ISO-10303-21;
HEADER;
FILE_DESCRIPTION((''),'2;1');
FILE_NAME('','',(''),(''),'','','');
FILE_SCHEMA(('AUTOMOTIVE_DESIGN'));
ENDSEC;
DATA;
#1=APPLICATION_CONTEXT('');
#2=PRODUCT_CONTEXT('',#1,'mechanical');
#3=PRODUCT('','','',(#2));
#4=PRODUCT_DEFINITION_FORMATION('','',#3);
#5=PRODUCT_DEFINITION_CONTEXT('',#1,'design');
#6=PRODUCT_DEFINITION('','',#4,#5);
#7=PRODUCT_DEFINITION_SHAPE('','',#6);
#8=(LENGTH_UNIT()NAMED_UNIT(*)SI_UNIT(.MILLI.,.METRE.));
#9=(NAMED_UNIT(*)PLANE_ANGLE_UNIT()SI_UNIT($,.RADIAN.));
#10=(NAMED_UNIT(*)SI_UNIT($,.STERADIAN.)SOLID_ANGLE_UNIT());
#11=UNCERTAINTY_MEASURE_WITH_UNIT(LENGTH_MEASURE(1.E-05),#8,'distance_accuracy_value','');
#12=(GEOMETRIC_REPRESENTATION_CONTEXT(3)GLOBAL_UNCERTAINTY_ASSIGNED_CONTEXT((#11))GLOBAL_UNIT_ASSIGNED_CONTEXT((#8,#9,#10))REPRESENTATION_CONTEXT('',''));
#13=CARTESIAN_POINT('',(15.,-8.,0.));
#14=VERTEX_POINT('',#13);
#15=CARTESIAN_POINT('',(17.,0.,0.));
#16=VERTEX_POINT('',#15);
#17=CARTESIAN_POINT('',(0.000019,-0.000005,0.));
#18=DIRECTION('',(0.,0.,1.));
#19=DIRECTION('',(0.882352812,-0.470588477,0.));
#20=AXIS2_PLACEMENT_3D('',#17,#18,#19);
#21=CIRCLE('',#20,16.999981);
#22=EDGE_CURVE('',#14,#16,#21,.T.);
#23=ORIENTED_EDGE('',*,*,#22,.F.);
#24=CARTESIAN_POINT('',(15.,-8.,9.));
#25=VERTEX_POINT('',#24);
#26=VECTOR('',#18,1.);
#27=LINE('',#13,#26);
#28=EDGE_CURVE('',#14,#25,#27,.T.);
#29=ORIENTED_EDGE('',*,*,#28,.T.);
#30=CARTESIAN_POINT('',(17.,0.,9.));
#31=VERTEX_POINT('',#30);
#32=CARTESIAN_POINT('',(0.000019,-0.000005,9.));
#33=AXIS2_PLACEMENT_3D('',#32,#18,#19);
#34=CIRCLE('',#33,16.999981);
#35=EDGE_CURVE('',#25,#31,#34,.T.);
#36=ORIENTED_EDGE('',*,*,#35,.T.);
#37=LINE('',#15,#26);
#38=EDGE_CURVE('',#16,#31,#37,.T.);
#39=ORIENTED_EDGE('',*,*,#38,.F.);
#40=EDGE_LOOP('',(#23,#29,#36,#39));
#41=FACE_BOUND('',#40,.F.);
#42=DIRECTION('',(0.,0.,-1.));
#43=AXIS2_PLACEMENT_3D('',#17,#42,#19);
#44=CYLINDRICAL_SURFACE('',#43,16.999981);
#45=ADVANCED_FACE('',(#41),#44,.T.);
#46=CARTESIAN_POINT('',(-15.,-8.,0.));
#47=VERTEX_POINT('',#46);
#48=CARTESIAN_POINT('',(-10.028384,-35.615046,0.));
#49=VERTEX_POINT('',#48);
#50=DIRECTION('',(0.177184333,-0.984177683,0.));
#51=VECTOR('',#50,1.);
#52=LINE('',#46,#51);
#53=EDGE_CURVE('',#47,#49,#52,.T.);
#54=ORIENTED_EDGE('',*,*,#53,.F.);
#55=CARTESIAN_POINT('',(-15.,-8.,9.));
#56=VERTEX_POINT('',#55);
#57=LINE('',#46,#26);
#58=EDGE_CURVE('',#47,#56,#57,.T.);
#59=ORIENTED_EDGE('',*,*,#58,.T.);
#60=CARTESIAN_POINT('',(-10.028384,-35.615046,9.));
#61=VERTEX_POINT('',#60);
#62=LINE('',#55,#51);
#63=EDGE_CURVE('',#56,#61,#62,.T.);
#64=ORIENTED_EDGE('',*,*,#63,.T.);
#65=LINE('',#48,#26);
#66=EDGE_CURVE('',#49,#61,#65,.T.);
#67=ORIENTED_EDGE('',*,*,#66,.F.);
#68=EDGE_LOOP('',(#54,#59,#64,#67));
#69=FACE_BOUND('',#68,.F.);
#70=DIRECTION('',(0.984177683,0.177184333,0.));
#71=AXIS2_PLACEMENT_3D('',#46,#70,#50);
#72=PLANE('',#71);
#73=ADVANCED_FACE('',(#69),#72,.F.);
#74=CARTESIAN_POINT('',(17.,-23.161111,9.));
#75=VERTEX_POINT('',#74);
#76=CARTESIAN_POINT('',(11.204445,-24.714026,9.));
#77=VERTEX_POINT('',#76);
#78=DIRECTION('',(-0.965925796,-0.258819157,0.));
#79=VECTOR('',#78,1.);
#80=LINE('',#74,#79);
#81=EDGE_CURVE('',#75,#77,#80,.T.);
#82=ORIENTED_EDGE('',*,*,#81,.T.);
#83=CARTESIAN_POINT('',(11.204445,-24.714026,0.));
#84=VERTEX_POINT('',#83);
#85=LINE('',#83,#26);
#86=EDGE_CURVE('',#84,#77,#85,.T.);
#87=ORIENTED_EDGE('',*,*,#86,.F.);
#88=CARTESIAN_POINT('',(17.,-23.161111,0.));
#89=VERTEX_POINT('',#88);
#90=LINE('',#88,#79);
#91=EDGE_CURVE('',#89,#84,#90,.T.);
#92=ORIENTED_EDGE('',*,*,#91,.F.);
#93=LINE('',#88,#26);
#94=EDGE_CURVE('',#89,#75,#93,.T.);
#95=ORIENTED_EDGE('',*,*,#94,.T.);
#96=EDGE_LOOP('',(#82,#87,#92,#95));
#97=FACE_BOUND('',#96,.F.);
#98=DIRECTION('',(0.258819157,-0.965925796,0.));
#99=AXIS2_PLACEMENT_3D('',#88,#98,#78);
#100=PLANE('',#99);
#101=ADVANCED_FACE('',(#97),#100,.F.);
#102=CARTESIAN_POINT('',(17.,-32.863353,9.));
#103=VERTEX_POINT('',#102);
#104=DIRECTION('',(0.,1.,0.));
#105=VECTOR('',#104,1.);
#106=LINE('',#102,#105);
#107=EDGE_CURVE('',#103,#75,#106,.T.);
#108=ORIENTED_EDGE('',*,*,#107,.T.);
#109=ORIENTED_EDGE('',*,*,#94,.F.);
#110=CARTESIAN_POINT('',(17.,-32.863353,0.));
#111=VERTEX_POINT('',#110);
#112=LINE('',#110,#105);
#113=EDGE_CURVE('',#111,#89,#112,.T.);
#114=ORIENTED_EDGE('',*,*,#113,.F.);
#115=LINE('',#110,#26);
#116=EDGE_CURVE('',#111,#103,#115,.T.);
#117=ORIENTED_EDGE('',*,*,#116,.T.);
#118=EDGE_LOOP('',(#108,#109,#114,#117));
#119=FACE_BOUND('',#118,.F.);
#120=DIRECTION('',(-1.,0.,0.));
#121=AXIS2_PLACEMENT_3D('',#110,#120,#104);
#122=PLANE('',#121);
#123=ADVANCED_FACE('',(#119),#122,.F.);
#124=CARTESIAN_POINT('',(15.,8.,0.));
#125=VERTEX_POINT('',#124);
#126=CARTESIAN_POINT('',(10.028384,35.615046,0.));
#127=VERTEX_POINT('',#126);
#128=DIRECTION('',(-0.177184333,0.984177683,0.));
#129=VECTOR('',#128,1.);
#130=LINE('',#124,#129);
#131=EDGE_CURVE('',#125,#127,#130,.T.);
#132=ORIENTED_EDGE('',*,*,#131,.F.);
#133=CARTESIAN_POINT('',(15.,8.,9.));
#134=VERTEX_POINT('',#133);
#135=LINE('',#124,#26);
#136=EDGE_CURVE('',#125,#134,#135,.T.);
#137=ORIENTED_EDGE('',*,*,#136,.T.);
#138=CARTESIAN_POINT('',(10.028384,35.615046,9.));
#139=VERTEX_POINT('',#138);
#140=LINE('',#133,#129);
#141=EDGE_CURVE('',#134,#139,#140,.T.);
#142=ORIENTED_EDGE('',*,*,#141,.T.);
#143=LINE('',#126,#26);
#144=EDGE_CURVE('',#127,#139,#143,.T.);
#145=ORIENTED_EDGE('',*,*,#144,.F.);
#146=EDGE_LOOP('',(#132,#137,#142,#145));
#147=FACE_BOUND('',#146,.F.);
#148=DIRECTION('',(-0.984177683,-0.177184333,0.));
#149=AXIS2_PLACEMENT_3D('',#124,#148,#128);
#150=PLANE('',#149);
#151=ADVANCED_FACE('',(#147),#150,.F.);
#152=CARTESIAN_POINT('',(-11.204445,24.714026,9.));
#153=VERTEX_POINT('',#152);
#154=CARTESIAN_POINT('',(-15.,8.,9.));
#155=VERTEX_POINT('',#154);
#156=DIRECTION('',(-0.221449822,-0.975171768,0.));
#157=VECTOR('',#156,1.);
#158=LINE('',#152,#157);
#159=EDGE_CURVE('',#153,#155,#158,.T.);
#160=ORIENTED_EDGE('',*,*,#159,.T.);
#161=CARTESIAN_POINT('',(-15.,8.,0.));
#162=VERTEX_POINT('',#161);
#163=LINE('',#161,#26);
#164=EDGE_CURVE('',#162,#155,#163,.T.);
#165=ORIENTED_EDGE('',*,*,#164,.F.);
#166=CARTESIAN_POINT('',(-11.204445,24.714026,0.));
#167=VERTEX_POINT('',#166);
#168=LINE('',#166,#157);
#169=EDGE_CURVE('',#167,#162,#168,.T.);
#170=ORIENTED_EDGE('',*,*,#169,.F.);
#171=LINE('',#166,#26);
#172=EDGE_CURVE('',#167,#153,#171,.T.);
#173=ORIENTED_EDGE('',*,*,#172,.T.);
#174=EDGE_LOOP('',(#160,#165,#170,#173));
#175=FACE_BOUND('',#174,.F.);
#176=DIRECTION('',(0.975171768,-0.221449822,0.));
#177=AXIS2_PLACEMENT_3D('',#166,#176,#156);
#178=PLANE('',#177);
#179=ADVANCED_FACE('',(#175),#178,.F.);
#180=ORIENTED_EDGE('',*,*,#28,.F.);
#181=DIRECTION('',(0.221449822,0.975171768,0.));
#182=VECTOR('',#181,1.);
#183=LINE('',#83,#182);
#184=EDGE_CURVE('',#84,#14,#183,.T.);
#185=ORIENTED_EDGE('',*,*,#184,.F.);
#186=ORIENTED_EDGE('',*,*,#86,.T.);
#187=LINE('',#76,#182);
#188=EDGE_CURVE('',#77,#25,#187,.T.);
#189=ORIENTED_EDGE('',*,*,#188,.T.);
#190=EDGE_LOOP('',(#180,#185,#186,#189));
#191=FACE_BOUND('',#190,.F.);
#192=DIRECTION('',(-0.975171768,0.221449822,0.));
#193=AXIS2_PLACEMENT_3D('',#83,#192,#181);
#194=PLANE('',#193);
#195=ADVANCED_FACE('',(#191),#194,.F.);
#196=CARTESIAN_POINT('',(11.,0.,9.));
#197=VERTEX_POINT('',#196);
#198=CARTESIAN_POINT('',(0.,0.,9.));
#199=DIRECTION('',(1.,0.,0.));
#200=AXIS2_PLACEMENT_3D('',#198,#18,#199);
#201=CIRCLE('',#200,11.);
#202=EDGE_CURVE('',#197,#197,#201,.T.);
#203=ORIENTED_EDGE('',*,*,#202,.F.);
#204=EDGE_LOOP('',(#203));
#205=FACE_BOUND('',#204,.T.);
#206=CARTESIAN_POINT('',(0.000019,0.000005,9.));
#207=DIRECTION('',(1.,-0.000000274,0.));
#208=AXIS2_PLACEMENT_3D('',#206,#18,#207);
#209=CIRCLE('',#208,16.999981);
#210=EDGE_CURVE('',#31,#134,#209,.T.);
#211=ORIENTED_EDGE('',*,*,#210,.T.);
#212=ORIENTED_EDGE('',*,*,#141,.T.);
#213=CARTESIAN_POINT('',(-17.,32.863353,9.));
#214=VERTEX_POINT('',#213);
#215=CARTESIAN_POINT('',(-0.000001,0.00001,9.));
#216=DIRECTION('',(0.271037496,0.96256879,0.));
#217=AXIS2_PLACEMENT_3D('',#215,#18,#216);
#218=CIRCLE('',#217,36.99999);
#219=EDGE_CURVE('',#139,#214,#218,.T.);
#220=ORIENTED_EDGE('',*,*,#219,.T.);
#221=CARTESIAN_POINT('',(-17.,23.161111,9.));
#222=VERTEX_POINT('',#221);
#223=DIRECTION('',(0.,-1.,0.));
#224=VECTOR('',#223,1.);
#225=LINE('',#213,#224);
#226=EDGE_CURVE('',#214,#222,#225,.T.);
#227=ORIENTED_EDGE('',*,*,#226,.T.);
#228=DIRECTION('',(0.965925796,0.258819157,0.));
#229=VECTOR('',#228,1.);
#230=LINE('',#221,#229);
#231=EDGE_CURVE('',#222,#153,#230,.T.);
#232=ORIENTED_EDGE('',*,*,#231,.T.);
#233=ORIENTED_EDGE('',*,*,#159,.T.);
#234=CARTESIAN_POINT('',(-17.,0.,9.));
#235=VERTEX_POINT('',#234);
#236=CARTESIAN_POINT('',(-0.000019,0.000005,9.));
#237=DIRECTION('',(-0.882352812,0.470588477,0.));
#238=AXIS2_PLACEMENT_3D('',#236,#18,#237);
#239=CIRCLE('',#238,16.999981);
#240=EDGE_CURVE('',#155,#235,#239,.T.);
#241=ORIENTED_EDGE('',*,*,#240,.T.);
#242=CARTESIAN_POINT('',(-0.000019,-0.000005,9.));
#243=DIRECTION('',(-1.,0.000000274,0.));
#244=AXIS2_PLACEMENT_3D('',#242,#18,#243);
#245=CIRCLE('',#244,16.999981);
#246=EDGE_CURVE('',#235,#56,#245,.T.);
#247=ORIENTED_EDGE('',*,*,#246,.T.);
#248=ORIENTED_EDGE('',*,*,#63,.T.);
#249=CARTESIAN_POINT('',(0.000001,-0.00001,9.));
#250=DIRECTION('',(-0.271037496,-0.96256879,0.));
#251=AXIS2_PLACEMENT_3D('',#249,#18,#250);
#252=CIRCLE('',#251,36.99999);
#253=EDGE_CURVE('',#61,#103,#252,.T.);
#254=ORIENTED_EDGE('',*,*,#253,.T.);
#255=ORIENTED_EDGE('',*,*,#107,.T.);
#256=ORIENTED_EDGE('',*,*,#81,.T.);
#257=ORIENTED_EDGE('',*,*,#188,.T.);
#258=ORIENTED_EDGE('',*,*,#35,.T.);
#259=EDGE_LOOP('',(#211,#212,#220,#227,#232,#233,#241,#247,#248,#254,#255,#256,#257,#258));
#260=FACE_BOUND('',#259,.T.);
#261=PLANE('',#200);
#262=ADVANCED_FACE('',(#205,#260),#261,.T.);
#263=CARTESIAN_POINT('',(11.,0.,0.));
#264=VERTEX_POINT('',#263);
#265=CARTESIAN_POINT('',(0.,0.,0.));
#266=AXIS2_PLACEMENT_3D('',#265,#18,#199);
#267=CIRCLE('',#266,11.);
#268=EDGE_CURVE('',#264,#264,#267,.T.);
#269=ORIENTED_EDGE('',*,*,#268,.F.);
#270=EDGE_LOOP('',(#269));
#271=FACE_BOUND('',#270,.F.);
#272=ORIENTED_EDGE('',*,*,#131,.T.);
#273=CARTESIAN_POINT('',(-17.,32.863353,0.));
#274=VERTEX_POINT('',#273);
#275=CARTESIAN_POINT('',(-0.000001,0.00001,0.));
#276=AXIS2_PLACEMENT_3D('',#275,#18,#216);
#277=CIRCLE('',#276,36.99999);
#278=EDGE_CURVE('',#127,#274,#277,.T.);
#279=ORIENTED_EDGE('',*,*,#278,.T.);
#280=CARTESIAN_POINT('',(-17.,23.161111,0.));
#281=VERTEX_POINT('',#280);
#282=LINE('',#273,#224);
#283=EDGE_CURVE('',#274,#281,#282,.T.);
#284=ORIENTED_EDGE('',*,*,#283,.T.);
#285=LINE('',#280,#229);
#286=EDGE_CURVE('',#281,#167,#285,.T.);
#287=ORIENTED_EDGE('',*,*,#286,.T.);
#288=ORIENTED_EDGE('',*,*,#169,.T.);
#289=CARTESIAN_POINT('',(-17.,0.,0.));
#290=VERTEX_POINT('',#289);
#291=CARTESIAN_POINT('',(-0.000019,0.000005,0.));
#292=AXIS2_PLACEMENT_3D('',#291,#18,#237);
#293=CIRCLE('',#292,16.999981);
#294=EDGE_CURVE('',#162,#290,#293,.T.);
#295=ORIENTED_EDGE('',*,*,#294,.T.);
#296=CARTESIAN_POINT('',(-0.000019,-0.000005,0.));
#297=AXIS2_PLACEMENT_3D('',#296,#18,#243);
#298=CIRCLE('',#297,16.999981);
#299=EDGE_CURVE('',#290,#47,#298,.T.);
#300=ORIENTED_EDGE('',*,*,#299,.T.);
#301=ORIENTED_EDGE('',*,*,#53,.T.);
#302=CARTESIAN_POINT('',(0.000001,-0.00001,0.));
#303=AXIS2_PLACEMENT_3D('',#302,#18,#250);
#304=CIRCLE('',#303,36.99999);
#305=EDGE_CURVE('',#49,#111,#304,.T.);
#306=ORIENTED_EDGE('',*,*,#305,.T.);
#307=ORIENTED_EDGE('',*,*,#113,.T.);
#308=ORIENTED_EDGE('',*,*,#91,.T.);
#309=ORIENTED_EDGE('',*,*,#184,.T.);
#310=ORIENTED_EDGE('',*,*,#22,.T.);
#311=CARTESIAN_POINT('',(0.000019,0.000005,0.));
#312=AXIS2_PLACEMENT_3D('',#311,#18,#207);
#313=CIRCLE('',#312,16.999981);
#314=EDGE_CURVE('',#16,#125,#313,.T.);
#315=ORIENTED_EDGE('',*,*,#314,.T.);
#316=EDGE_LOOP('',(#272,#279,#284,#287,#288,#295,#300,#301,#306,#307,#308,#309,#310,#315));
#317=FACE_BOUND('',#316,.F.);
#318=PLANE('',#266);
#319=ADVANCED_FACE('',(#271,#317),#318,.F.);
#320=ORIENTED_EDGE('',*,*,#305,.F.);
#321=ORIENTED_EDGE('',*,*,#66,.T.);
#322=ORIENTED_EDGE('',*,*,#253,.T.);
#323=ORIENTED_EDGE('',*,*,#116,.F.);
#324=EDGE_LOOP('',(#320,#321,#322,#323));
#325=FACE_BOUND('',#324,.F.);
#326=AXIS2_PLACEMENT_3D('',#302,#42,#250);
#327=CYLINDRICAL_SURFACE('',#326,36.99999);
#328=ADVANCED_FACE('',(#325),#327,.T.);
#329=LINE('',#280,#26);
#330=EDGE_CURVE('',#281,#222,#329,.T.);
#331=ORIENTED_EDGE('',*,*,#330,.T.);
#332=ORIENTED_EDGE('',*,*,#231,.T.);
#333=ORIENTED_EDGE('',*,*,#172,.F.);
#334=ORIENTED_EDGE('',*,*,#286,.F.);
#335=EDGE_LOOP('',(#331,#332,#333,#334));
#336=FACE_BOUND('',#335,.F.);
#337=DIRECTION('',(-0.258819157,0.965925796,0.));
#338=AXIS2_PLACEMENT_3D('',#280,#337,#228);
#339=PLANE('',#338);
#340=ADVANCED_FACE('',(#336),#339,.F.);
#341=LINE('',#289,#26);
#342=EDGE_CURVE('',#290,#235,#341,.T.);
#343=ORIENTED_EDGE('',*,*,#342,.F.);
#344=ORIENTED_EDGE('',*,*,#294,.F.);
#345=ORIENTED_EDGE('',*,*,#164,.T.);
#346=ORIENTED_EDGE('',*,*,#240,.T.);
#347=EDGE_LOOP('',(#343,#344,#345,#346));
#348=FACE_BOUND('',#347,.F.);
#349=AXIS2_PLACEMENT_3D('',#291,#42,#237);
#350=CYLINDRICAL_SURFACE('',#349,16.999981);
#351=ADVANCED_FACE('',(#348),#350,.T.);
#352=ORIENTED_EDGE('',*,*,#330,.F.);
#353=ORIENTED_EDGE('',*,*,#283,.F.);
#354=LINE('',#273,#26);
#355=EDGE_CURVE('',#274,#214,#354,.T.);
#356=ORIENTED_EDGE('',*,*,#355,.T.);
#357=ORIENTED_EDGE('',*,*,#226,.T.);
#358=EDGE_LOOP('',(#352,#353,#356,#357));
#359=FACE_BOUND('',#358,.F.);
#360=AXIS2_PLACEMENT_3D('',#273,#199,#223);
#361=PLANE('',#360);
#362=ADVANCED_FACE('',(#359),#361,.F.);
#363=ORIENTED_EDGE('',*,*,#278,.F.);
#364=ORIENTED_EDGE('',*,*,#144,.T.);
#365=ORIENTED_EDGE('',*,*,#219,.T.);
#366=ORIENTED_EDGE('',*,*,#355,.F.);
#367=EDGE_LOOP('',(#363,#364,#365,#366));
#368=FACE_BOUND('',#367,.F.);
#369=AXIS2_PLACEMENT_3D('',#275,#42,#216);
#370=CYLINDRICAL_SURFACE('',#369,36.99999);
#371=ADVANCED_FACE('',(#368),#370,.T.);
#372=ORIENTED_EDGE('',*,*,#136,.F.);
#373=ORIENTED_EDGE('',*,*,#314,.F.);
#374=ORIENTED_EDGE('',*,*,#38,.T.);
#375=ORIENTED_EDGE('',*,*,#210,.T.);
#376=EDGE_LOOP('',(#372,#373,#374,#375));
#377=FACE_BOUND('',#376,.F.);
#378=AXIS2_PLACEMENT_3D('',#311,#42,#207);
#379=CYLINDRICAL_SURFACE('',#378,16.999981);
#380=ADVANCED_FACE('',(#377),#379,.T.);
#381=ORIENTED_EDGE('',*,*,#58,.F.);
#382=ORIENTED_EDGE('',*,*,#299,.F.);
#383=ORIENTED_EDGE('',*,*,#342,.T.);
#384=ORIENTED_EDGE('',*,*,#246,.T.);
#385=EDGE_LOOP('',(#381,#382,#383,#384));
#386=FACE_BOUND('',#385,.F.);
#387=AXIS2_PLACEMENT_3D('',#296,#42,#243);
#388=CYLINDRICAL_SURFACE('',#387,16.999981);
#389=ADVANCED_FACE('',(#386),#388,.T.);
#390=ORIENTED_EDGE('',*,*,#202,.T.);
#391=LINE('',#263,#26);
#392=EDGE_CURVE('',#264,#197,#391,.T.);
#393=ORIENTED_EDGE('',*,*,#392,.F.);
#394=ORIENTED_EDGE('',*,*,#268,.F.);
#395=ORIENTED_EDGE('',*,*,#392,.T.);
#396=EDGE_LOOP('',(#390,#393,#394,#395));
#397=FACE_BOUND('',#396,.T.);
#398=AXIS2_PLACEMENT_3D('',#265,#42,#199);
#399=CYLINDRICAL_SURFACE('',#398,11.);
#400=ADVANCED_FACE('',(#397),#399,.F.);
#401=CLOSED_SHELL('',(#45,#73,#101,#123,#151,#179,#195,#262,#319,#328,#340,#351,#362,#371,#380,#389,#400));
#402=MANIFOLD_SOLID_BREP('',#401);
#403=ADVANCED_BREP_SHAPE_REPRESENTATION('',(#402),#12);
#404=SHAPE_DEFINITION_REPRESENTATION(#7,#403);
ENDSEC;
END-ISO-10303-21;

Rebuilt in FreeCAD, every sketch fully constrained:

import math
import FreeCAD as App
import Part
import Sketcher
from FreeCAD import Vector
Q = App.Units.Quantity

doc = App.newDocument("Part")
body = doc.addObject("PartDesign::Body", "Body")

# Sketch on XY plane
sketch1 = doc.addObject("Sketcher::SketchObject", "Sketch")
body.addObject(sketch1)
sketch1.AttachmentSupport = (doc.XY_Plane, [""])
sketch1.MapMode = "FlatFace"
sketch1.addGeometry(Part.ArcOfCircle(Part.Circle(Vector(-0.000001, 0.00001, 0), Vector(0, 0, 1), 36.99999), math.radians(74.273987), math.radians(117.352239)), False)
sketch1.addGeometry(Part.LineSegment(Vector(-17, 32.863353, 0), Vector(-17, 23.161111, 0)), False)
sketch1.addGeometry(Part.LineSegment(Vector(-17, 23.161111, 0), Vector(-11.204445, 24.714026, 0)), False)
sketch1.addGeometry(Part.LineSegment(Vector(-11.204445, 24.714026, 0), Vector(-15, 8, 0)), False)
sketch1.addGeometry(Part.ArcOfCircle(Part.Circle(Vector(-0.000019, 0.000005, 0), Vector(0, 0, 1), 16.999981), math.radians(151.927497), math.radians(180.000016)), False)
sketch1.addGeometry(Part.ArcOfCircle(Part.Circle(Vector(-0.000019, -0.000005, 0), Vector(0, 0, 1), 16.999981), math.radians(179.999984), math.radians(208.072503)), False)
sketch1.addGeometry(Part.LineSegment(Vector(-15, -8, 0), Vector(-10.028384, -35.615046, 0)), False)
sketch1.addGeometry(Part.ArcOfCircle(Part.Circle(Vector(0.000001, -0.00001, 0), Vector(0, 0, 1), 36.99999), math.radians(-105.726013), math.radians(-62.647761)), False)
sketch1.addGeometry(Part.LineSegment(Vector(17, -32.863353, 0), Vector(17, -23.161111, 0)), False)
sketch1.addGeometry(Part.LineSegment(Vector(17, -23.161111, 0), Vector(11.204445, -24.714026, 0)), False)
sketch1.addGeometry(Part.LineSegment(Vector(11.204445, -24.714026, 0), Vector(15, -8, 0)), False)
sketch1.addGeometry(Part.ArcOfCircle(Part.Circle(Vector(0.000019, -0.000005, 0), Vector(0, 0, 1), 16.999981), math.radians(-28.072503), math.radians(0.000016)), False)
sketch1.addGeometry(Part.ArcOfCircle(Part.Circle(Vector(0.000019, 0.000005, 0), Vector(0, 0, 1), 16.999981), math.radians(-0.000016), math.radians(28.072503)), False)
sketch1.addGeometry(Part.LineSegment(Vector(15, 8, 0), Vector(10.028384, 35.615046, 0)), False)
sketch1.addGeometry(Part.Circle(Vector(0, 0, 0), Vector(0, 0, 1), 11), False)
sketch1.addConstraint(Sketcher.Constraint("Coincident", 0, 2, 1, 1))
sketch1.addConstraint(Sketcher.Constraint("Coincident", 1, 2, 2, 1))
sketch1.addConstraint(Sketcher.Constraint("Coincident", 2, 2, 3, 1))
sketch1.addConstraint(Sketcher.Constraint("Coincident", 3, 2, 4, 1))
sketch1.addConstraint(Sketcher.Constraint("Tangent", 4, 2, 5, 1))
sketch1.addConstraint(Sketcher.Constraint("Coincident", 5, 2, 6, 1))
sketch1.addConstraint(Sketcher.Constraint("Coincident", 6, 2, 7, 1))
sketch1.addConstraint(Sketcher.Constraint("Coincident", 7, 2, 8, 1))
sketch1.addConstraint(Sketcher.Constraint("Coincident", 8, 2, 9, 1))
sketch1.addConstraint(Sketcher.Constraint("Coincident", 9, 2, 10, 1))
sketch1.addConstraint(Sketcher.Constraint("Coincident", 10, 2, 11, 1))
sketch1.addConstraint(Sketcher.Constraint("Tangent", 11, 2, 12, 1))
sketch1.addConstraint(Sketcher.Constraint("Coincident", 12, 2, 13, 1))
sketch1.addConstraint(Sketcher.Constraint("Coincident", 13, 2, 0, 1))
sketch1.addConstraint(Sketcher.Constraint("Vertical", 1))
sketch1.addConstraint(Sketcher.Constraint("Vertical", 8))
sketch1.addConstraint(Sketcher.Constraint("Coincident", 14, 3, -1, 1))
sketch1.addConstraint(Sketcher.Constraint("Equal", 4, 5))
sketch1.addConstraint(Sketcher.Constraint("Equal", 0, 7))
sketch1.addConstraint(Sketcher.Constraint("Equal", 5, 11))
sketch1.addConstraint(Sketcher.Constraint("Equal", 11, 12))
sketch1.addConstraint(Sketcher.Constraint("Symmetric", 0, 3, 7, 3, -1, 1))
sketch1.addConstraint(Sketcher.Constraint("Symmetric", 4, 3, 11, 3, -1, 1))
sketch1.addConstraint(Sketcher.Constraint("Symmetric", 1, 2, 8, 2, -1, 1))
sketch1.addConstraint(Sketcher.Constraint("Symmetric", 2, 2, 9, 2, -1, 1))
sketch1.addConstraint(Sketcher.Constraint("Symmetric", 5, 2, 10, 2, -2))
sketch1.addConstraint(Sketcher.Constraint("PointOnObject", 0, 3, -2))
sketch1.addConstraint(Sketcher.Constraint("PointOnObject", 4, 2, -1))
sketch1.addConstraint(Sketcher.Constraint("PointOnObject", 11, 2, -1))
sketch1.addConstraint(Sketcher.Constraint("Parallel", 3, 10))
sketch1.addConstraint(Sketcher.Constraint("Parallel", 6, 13))
sketch1.addConstraint(Sketcher.Constraint("Horizontal", 3, 2, 12, 2))
sketch1.addConstraint(Sketcher.Constraint("Vertical", 1, 2, 4, 2))
sketch1.addConstraint(Sketcher.Constraint("Diameter", 14, Q("22 mm")))
sketch1.addConstraint(Sketcher.Constraint("Angle", 2, Q("15.000007 deg")))
sketch1.addConstraint(Sketcher.Constraint("Distance", 2, Q("6 mm")))
sketch1.addConstraint(Sketcher.Constraint("DistanceX", 0, 2, -1, 1, Q("17 mm")))
sketch1.addConstraint(Sketcher.Constraint("DistanceX", 3, 2, -1, 1, Q("15 mm")))
sketch1.addConstraint(Sketcher.Constraint("DistanceY", -1, 1, 3, 2, Q("8 mm")))
sketch1.addConstraint(Sketcher.Constraint("Radius", 0, Q("36.99999 mm")))
sketch1.addConstraint(Sketcher.Constraint("DistanceY", 1, 2, 1, 1, Q("9.702242 mm")))
sketch1.addConstraint(Sketcher.Constraint("Distance", 3, Q("17.139571 mm")))
sketch1.addConstraint(Sketcher.Constraint("DistanceY", 6, 2, 5, 3, Q("35.615041 mm")))
pad1 = doc.addObject("PartDesign::Pad", "Pad")
body.addObject(pad1)
pad1.Profile = sketch1
pad1.Length = 9

doc.recompute()
